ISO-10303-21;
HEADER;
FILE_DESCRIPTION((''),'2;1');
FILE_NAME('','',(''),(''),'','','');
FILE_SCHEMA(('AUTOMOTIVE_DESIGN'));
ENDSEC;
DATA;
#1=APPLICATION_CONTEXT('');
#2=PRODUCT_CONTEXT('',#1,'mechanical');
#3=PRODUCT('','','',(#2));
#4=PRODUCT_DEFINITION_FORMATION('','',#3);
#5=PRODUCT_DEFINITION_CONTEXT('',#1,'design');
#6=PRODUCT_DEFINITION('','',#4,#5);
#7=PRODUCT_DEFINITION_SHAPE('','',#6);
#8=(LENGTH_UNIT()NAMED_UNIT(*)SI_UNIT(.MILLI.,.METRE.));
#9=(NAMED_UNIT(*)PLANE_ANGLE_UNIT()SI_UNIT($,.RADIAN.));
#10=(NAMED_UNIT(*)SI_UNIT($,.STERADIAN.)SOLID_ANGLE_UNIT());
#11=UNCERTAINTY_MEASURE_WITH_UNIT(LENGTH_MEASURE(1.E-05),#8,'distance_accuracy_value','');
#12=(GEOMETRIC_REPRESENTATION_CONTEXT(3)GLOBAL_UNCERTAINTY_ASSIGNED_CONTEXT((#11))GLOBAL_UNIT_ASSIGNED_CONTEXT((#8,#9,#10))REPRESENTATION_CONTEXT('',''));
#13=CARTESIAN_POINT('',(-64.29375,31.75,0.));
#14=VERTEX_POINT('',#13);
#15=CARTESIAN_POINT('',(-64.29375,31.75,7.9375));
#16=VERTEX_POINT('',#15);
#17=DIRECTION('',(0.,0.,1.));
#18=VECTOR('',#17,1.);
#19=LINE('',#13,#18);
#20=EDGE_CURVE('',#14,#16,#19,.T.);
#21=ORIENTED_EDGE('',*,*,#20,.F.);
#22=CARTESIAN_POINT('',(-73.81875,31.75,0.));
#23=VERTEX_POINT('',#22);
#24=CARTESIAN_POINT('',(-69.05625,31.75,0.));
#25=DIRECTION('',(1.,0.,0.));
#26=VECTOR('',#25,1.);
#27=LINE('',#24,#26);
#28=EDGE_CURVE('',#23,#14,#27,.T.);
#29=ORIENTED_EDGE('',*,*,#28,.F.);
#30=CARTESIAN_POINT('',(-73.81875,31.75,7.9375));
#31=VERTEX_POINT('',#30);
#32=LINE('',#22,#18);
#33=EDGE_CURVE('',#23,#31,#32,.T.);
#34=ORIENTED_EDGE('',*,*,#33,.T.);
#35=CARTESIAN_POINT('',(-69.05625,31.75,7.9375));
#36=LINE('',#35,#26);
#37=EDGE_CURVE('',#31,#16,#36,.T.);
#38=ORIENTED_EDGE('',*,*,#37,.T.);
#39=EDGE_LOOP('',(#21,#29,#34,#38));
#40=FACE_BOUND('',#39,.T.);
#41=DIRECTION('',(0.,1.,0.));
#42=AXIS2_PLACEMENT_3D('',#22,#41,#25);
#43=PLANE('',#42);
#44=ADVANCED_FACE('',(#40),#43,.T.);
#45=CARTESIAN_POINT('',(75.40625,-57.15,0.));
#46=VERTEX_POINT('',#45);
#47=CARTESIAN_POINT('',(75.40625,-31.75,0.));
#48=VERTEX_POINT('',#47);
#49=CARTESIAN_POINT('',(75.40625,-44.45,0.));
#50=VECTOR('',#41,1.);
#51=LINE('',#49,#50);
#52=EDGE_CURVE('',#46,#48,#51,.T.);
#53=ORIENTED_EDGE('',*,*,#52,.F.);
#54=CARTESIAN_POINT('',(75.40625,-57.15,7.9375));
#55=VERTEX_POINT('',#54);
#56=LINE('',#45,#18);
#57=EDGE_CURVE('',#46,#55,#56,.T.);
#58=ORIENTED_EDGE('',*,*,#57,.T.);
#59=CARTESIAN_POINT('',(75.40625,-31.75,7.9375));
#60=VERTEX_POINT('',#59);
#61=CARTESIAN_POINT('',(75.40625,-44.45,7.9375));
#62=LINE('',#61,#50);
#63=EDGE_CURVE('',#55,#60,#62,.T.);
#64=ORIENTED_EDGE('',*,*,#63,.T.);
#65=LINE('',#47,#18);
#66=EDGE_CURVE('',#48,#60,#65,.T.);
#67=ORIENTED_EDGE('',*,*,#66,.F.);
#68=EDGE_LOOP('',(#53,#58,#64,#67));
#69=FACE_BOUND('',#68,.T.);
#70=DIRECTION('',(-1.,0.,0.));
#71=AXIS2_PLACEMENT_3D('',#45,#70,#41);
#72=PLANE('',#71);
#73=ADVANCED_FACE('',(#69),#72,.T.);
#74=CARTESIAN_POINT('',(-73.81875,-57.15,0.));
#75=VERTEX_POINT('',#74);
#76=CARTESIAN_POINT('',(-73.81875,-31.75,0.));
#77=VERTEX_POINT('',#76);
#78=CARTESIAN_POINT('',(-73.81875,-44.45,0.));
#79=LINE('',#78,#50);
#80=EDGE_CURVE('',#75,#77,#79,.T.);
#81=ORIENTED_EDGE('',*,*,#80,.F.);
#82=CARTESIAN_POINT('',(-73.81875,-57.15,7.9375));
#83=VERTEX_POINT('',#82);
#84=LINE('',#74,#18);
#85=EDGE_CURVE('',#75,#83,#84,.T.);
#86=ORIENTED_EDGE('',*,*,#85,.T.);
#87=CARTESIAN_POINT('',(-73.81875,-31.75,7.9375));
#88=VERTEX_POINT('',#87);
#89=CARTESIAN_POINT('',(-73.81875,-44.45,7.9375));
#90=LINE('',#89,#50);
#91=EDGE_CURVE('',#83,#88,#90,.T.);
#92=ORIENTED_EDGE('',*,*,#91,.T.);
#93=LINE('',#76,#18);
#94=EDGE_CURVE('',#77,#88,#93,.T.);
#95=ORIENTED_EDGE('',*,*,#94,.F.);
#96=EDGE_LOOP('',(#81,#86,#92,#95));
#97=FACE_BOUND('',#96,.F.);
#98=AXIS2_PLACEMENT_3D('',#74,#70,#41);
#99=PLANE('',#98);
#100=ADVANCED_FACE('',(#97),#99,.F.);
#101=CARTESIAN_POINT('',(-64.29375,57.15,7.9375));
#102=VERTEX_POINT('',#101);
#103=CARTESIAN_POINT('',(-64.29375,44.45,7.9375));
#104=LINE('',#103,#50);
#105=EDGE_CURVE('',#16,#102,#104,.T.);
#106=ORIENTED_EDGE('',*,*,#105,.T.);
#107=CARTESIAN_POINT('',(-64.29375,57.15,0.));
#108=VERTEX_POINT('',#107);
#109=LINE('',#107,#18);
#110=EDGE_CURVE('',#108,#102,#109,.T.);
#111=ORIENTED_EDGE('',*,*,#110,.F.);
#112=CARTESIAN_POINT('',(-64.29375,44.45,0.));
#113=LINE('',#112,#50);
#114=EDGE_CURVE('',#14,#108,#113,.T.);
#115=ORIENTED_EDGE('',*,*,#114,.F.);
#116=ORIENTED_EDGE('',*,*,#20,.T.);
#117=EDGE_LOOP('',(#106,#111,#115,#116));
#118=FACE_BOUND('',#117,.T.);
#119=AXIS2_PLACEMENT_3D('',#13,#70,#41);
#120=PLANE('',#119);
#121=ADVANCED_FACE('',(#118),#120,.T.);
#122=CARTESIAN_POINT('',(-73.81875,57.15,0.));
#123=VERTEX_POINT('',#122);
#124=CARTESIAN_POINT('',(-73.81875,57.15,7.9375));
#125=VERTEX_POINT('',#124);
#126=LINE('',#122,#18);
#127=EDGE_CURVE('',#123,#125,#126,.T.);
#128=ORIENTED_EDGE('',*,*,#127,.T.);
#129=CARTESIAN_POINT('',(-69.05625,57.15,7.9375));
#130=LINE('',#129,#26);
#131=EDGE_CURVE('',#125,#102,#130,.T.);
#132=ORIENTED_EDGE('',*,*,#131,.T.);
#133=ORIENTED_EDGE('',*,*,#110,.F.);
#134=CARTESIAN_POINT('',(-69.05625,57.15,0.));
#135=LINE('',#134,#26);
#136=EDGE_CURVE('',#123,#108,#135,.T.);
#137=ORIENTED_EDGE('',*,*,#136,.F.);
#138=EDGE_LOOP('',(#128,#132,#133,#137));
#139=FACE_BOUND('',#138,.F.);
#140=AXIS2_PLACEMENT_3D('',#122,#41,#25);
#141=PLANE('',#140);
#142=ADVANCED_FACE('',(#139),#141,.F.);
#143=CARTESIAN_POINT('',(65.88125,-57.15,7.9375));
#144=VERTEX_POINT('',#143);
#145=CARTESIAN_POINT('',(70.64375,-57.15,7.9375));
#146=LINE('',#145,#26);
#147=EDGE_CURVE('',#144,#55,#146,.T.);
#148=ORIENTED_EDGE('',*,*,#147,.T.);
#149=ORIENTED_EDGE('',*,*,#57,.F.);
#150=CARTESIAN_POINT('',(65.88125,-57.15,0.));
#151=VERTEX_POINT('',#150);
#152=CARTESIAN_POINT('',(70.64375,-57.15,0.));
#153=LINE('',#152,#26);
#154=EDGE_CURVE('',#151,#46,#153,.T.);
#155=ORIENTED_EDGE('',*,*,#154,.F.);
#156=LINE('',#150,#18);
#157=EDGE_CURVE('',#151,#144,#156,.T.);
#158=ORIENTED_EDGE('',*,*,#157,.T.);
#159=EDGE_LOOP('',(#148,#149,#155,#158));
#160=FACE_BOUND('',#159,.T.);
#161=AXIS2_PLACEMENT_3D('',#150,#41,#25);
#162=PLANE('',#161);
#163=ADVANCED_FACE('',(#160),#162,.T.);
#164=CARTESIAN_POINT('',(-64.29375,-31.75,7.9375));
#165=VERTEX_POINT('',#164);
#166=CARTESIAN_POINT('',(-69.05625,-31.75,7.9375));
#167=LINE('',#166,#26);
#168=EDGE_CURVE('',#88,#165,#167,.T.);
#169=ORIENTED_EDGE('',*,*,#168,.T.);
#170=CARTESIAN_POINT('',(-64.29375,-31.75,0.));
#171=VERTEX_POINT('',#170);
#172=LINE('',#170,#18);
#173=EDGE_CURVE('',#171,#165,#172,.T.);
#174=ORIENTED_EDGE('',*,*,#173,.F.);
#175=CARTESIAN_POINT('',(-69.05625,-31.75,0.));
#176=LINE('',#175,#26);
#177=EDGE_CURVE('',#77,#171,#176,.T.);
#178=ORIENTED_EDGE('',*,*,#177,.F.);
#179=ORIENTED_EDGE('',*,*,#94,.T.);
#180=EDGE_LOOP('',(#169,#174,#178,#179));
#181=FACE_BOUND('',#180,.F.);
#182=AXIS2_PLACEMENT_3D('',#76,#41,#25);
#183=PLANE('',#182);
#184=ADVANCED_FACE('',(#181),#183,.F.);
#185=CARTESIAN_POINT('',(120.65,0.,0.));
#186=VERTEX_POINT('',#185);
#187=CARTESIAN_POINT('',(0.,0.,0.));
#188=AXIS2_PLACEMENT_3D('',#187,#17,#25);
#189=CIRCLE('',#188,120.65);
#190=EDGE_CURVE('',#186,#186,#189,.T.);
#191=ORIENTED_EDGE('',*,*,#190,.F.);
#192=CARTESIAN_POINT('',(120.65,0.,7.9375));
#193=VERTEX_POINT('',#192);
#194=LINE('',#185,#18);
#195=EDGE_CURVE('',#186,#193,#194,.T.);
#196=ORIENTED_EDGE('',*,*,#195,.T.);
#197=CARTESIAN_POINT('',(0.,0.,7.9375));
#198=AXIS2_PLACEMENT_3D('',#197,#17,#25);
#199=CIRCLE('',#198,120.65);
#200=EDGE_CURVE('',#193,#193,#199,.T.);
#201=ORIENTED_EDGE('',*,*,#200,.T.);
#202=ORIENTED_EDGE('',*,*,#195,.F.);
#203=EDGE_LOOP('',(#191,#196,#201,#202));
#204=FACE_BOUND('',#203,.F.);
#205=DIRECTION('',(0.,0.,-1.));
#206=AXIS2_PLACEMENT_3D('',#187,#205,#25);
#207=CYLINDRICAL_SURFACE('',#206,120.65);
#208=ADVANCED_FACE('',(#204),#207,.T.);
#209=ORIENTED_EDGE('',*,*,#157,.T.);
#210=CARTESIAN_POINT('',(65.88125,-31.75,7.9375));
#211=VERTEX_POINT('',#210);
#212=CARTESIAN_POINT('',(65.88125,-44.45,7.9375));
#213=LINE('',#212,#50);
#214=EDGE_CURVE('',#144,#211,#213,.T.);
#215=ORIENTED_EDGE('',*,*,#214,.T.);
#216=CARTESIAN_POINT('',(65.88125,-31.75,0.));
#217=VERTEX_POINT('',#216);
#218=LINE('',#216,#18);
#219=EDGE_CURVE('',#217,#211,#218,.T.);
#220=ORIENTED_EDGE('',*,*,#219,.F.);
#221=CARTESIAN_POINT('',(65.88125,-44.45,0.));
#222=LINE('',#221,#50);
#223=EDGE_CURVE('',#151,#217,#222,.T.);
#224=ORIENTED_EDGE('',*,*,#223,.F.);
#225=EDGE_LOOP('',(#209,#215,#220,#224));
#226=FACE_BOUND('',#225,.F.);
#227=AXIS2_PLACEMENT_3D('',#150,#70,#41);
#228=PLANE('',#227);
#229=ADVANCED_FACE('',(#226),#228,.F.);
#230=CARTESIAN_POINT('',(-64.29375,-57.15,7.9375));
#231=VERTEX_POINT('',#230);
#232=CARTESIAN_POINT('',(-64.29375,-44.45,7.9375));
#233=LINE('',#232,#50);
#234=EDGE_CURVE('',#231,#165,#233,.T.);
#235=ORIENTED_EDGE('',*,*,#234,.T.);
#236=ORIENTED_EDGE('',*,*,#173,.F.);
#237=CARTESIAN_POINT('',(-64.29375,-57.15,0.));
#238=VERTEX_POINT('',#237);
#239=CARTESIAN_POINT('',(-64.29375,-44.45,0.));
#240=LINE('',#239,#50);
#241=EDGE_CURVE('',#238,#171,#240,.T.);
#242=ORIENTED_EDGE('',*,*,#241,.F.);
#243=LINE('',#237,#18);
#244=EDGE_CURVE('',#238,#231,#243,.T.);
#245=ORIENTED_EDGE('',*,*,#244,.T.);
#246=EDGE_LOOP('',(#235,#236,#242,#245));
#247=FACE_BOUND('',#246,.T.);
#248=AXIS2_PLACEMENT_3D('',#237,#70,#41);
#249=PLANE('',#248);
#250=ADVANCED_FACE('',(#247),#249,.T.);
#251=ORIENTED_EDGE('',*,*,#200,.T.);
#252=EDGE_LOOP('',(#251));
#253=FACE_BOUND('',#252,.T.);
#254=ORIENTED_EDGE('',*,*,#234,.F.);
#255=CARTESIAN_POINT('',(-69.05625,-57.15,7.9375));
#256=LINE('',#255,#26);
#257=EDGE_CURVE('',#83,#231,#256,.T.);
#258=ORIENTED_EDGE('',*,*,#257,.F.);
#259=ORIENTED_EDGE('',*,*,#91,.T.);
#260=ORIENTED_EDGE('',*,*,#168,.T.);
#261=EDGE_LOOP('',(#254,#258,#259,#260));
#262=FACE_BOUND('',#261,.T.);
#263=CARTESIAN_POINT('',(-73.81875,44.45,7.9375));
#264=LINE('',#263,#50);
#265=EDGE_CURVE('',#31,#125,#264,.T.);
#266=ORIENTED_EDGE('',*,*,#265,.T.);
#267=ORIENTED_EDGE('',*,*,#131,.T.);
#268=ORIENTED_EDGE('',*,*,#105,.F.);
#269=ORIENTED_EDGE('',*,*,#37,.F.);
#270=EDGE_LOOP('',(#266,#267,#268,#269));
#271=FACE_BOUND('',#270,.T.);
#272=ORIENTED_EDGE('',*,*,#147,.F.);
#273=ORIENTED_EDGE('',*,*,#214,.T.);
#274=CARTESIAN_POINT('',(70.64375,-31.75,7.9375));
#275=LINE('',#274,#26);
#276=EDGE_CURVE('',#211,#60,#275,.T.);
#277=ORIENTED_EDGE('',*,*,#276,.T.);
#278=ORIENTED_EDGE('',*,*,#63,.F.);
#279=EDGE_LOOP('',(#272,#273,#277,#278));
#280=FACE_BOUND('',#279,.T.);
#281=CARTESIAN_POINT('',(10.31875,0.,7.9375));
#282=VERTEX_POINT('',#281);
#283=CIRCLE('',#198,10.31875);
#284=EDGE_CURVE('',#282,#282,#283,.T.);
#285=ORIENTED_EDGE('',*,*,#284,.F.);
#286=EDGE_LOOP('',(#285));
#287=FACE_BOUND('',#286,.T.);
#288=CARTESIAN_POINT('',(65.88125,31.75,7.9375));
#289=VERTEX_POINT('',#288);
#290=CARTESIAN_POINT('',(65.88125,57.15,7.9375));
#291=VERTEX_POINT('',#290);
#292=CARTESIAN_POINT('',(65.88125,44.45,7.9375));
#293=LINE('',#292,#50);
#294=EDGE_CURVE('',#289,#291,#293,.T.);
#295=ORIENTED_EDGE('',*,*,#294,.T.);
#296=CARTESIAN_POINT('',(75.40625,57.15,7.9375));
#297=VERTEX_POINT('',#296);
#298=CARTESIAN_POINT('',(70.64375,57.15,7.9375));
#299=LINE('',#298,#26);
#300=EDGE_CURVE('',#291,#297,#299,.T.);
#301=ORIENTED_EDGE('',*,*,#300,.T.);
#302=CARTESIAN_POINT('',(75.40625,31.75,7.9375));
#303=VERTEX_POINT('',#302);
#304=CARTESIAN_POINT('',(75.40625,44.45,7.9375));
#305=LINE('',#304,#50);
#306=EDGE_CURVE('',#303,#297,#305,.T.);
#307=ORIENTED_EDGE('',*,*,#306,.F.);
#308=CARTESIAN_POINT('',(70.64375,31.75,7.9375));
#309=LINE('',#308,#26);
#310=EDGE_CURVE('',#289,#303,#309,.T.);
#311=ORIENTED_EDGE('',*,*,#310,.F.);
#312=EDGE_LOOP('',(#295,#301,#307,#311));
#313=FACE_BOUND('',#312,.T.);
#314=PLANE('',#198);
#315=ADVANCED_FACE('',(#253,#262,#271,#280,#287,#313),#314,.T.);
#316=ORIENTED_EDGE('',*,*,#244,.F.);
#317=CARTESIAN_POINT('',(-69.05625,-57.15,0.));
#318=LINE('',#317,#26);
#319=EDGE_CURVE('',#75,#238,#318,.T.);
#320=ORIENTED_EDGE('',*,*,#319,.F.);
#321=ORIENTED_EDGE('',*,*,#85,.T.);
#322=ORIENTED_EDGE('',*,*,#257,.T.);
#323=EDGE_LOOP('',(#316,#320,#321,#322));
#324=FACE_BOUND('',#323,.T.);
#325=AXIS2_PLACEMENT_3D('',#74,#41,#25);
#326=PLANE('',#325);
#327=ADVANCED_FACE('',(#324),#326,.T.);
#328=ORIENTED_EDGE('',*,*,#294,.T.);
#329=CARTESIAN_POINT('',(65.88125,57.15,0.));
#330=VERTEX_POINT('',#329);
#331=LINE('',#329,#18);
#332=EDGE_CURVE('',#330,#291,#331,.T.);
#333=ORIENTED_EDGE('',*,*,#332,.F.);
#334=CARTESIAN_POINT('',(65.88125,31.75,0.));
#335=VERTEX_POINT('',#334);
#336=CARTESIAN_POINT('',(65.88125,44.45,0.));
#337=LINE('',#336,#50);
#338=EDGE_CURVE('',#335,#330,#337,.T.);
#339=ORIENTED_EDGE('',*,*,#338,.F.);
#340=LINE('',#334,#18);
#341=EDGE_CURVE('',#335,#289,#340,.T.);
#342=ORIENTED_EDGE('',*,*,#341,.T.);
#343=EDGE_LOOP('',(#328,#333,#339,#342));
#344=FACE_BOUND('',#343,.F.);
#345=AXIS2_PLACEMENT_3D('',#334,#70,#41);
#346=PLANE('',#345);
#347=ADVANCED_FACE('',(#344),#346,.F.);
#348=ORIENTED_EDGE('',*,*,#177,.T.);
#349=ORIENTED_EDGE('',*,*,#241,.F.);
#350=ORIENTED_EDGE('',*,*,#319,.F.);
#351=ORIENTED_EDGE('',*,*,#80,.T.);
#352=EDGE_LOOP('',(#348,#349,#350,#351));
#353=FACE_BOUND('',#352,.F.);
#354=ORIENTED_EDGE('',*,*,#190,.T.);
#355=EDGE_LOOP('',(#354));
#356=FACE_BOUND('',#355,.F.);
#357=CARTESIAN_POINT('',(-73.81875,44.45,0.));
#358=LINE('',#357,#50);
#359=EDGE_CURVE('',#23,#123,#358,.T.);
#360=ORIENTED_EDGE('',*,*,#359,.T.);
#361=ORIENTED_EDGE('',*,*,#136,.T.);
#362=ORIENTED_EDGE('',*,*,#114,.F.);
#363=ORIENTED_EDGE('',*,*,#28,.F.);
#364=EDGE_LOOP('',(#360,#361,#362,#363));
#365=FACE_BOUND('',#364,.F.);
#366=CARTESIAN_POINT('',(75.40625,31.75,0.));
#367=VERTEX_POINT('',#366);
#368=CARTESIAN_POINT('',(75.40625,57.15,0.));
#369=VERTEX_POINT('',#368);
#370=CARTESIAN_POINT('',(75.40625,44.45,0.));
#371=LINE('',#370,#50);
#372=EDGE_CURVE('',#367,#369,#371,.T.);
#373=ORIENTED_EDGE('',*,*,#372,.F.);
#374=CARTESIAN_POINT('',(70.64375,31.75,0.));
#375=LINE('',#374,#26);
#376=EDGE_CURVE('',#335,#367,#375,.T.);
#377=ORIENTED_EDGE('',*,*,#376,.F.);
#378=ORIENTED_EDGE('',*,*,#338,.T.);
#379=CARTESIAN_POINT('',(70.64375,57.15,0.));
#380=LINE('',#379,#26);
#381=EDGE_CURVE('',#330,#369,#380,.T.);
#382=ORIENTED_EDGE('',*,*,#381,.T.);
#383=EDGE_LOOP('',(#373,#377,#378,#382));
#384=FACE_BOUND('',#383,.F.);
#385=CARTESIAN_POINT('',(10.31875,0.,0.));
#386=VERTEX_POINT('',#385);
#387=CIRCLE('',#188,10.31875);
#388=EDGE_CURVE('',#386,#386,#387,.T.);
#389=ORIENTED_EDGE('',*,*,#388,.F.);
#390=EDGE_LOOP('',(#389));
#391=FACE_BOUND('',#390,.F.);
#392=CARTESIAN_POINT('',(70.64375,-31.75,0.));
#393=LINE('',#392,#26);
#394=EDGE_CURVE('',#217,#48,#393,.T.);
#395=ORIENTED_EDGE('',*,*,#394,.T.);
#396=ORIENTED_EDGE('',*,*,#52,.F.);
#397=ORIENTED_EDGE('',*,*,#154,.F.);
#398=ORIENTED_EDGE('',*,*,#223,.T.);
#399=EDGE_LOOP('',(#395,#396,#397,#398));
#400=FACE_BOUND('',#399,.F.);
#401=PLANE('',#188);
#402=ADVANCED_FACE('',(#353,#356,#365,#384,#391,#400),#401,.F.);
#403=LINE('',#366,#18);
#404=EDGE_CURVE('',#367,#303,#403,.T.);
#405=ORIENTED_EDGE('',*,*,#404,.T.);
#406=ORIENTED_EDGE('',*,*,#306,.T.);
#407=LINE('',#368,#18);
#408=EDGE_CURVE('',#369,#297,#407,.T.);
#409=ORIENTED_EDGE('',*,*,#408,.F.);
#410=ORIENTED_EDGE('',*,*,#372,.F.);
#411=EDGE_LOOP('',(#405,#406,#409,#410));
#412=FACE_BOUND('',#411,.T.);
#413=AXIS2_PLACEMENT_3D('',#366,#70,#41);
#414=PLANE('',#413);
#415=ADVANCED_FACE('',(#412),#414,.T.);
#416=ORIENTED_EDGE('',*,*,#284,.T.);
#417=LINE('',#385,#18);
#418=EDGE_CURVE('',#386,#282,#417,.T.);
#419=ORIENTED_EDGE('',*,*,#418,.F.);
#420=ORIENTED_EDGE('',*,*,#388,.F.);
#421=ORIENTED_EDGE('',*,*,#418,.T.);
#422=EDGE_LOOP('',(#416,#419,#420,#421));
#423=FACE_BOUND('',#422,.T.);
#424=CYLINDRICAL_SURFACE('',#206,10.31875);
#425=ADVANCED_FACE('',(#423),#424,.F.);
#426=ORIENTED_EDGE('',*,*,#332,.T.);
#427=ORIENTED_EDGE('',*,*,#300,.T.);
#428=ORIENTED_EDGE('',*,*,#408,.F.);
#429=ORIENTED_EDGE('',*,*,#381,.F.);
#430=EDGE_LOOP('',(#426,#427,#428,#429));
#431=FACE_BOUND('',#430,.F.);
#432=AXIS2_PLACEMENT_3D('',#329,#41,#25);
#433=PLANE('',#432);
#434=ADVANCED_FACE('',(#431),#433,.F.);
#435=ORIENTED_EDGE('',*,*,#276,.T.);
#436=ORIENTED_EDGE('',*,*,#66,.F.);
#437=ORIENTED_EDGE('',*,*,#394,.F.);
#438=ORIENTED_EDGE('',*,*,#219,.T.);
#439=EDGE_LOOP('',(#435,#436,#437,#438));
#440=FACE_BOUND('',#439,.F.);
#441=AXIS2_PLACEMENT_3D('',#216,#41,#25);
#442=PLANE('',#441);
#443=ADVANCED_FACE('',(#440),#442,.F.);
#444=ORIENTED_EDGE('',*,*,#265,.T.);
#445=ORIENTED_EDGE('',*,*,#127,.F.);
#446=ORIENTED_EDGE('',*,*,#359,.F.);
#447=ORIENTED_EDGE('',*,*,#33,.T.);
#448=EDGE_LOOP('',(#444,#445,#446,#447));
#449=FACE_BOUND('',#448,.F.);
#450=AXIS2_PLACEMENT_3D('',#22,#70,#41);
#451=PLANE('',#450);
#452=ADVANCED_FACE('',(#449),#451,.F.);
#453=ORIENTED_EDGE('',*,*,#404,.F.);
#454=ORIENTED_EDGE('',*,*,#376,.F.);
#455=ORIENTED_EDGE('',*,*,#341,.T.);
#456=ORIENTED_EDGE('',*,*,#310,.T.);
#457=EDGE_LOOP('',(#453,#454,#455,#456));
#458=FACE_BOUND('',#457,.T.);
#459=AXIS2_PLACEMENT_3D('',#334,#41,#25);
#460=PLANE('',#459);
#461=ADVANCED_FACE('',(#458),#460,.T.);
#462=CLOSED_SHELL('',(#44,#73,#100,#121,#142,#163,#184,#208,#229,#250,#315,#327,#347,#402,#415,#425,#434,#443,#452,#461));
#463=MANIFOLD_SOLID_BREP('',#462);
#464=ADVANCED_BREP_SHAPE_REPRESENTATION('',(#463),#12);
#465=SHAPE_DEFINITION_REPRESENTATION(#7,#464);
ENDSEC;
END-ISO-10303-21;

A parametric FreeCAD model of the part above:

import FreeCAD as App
import Part
import Sketcher

V = App.Vector
Q = App.Units.Quantity


def add_polygon(sketch, points):
    """Adds a closed chain of lines whose ends are joined by coincident constraints."""
    first, n = sketch.GeometryCount, len(points)
    for a, b in zip(points, points[1:] + points[:1]):
        sketch.addGeometry(Part.LineSegment(App.Vector(*a, 0), App.Vector(*b, 0)), False)
    for i in range(n):
        sketch.addConstraint(Sketcher.Constraint("Coincident", first + i, 2, first + (i + 1) % n, 1))

doc = App.newDocument("Part")
params = doc.addObject("Spreadsheet::Sheet", "Params")
for row, (alias, value) in enumerate([
    ("sketch1_diameter", "9.5 in"),
    ("sketch1_height", "1 in"),
    ("sketch1_diameter2", "0.8125 in"),
    ("sketch1_width", "0.375 in"),
    ("pad1_length", "0.3125 in"),
], start=1):
    params.set(f"A{row}", alias)
    params.set(f"B{row}", "=" + value)
    params.setAlias(f"B{row}", alias)

body = doc.addObject("PartDesign::Body", "Body")

sketch1 = doc.addObject("Sketcher::SketchObject", "Sketch")
body.addObject(sketch1)
sketch1.AttachmentSupport = (doc.XY_Plane, [""])
sketch1.MapMode = "FlatFace"
sketch1.addGeometry(Part.Circle(V(0, 0, 0), V(0, 0, 1), 121), False)
add_polygon(sketch1, [(-64, -57), (-74, -57), (-74, -32), (-64, -32)])
add_polygon(sketch1, [(75, -57), (66, -57), (66, -32), (75, -32)])
sketch1.addGeometry(Part.Circle(V(0, 0, 0), V(0, 0, 1), 10), False)
add_polygon(sketch1, [(-64, 32), (-74, 32), (-74, 57), (-64, 57)])
add_polygon(sketch1, [(75, 32), (66, 32), (66, 57), (75, 57)])
sketch1.addConstraint([
    Sketcher.Constraint("Horizontal", 1),
    Sketcher.Constraint("Vertical", 2),
    Sketcher.Constraint("Horizontal", 3),
    Sketcher.Constraint("Vertical", 4),
    Sketcher.Constraint("Horizontal", 5),
    Sketcher.Constraint("Vertical", 6),
    Sketcher.Constraint("Horizontal", 7),
    Sketcher.Constraint("Vertical", 8),
    Sketcher.Constraint("Horizontal", 10),
    Sketcher.Constraint("Vertical", 11),
    Sketcher.Constraint("Horizontal", 12),
    Sketcher.Constraint("Vertical", 13),
    Sketcher.Constraint("Horizontal", 14),
    Sketcher.Constraint("Vertical", 15),
    Sketcher.Constraint("Horizontal", 16),
    Sketcher.Constraint("Vertical", 17),
    Sketcher.Constraint("Coincident", 0, 3, -1, 1),
    Sketcher.Constraint("Coincident", 9, 3, -1, 1),
    Sketcher.Constraint("Symmetric", 2, 2, 10, 2, -1),
    Sketcher.Constraint("Symmetric", 4, 2, 12, 2, -1),
    Sketcher.Constraint("Symmetric", 6, 2, 14, 2, -1),
    Sketcher.Constraint("Symmetric", 8, 2, 16, 2, -1),
    Sketcher.Constraint("Horizontal", 4, 2, 5, 2),
    Sketcher.Constraint("Horizontal", 3, 2, 6, 2),
    Sketcher.Constraint("Equal", 3, 5),
    Sketcher.Constraint("Diameter", 0, Q("9.5 in")),
    Sketcher.Constraint("DistanceY", 2, 1, 2, 2, Q("1 in")),
    Sketcher.Constraint("Diameter", 9, Q("0.8125 in")),
    Sketcher.Constraint("DistanceX", 1, 2, 5, 2, Q("5.5 in")),
    Sketcher.Constraint("DistanceY", 2, 2, 10, 2, Q("2.5 in")),
    Sketcher.Constraint("DistanceX", 1, 2, 1, 1, Q("0.375 in")),
    Sketcher.Constraint("DistanceX", 1, 2, -1, 1, Q("2.90625 in")),
])
sketch1.setExpression("Constraints[41]", "Params.sketch1_diameter")
sketch1.setExpression("Constraints[42]", "Params.sketch1_height")
sketch1.setExpression("Constraints[43]", "Params.sketch1_diameter2")
sketch1.setExpression("Constraints[46]", "Params.sketch1_width")
pad1 = doc.addObject("PartDesign::Pad", "Pad")
body.addObject(pad1)
pad1.Profile = sketch1
pad1.setExpression("Length", "Params.pad1_length")

doc.recompute()
